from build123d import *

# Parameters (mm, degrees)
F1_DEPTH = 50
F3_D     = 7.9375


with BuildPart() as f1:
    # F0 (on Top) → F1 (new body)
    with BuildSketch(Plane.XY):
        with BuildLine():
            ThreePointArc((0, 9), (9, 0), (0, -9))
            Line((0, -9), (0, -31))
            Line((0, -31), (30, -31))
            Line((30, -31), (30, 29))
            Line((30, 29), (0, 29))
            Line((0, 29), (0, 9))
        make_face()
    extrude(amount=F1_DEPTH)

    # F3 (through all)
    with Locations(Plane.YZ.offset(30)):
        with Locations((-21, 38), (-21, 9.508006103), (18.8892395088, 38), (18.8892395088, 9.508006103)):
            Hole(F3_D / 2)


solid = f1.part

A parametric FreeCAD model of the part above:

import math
import FreeCAD as App
import Part
import Sketcher

doc = App.newDocument("Part")
body = doc.addObject("PartDesign::Body", "Body")

sketch1 = doc.addObject("Sketcher::SketchObject", "Sketch")
body.addObject(sketch1)
sketch1.AttachmentSupport = (doc.XY_Plane, [""])
sketch1.MapMode = "FlatFace"
sketch1.addGeometry(Part.ArcOfCircle(Part.Circle(App.Vector(0, 0, 0), App.Vector(0, 0, 1), 9), math.radians(-90), math.radians(90)), False)
sketch1.addGeometry(Part.LineSegment(App.Vector(0, -9, 0), App.Vector(0, -31, 0)), False)
sketch1.addGeometry(Part.LineSegment(App.Vector(0, -31, 0), App.Vector(30, -31, 0)), False)
sketch1.addGeometry(Part.LineSegment(App.Vector(30, -31, 0), App.Vector(30, 29, 0)), False)
sketch1.addGeometry(Part.LineSegment(App.Vector(30, 29, 0), App.Vector(0, 29, 0)), False)
sketch1.addGeometry(Part.LineSegment(App.Vector(0, 29, 0), App.Vector(0, 9, 0)), False)
sketch1.addConstraint(Sketcher.Constraint("Coincident", 0, 1, 1, 1))
sketch1.addConstraint(Sketcher.Constraint("Coincident", 1, 2, 2, 1))
sketch1.addConstraint(Sketcher.Constraint("Coincident", 2, 2, 3, 1))
sketch1.addConstraint(Sketcher.Constraint("Coincident", 3, 2, 4, 1))
sketch1.addConstraint(Sketcher.Constraint("Coincident", 4, 2, 5, 1))
sketch1.addConstraint(Sketcher.Constraint("Coincident", 5, 2, 0, 2))
sketch1.addConstraint(Sketcher.Constraint("Vertical", 1))
sketch1.addConstraint(Sketcher.Constraint("Horizontal", 2))
sketch1.addConstraint(Sketcher.Constraint("Vertical", 3))
sketch1.addConstraint(Sketcher.Constraint("Horizontal", 4))
sketch1.addConstraint(Sketcher.Constraint("Vertical", 5))
sketch1.addConstraint(Sketcher.Constraint("Coincident", 0, 3, -1, 1))
sketch1.addConstraint(Sketcher.Constraint("PointOnObject", 0, 1, -2))
sketch1.addConstraint(Sketcher.Constraint("PointOnObject", 4, 2, -2))
sketch1.addConstraint(Sketcher.Constraint("Radius", 0, 9.0))
sketch1.addConstraint(Sketcher.Constraint("DistanceX", 2, 1, 2, 2, 30.0))
sketch1.addConstraint(Sketcher.Constraint("DistanceY", 1, 2, 1, 1, 22.0))
sketch1.addConstraint(Sketcher.Constraint("DistanceY", 3, 1, 3, 2, 60.0))
pad1 = doc.addObject("PartDesign::Pad", "Pad")
body.addObject(pad1)
pad1.Profile = sketch1
pad1.Length = 50

sketch2 = doc.addObject("Sketcher::SketchObject", "Sketch001")
body.addObject(sketch2)
sketch2.AttachmentSupport = (doc.YZ_Plane, [""])
sketch2.MapMode = "FlatFace"
sketch2.AttachmentOffset = App.Placement(App.Vector(0, 0, 30), App.Rotation())
sketch2.addGeometry(Part.Circle(App.Vector(-21, 38, 0), App.Vector(0, 0, 1), 4), False)
sketch2.addGeometry(Part.Circle(App.Vector(-21, 9.5, 0), App.Vector(0, 0, 1), 4), False)
sketch2.addGeometry(Part.Circle(App.Vector(18.9, 38, 0), App.Vector(0, 0, 1), 4), False)
sketch2.addGeometry(Part.Circle(App.Vector(18.9, 9.5, 0), App.Vector(0, 0, 1), 4), False)
sketch2.addConstraint(Sketcher.Constraint("Equal", 0, 1))
sketch2.addConstraint(Sketcher.Constraint("Equal", 1, 2))
sketch2.addConstraint(Sketcher.Constraint("Equal", 2, 3))
sketch2.addConstraint(Sketcher.Constraint("Horizontal", 0, 3, 2, 3))
sketch2.addConstraint(Sketcher.Constraint("Horizontal", 1, 3, 3, 3))
sketch2.addConstraint(Sketcher.Constraint("Vertical", 0, 3, 1, 3))
sketch2.addConstraint(Sketcher.Constraint("Vertical", 2, 3, 3, 3))
sketch2.addConstraint(Sketcher.Constraint("DistanceX", 0, 3, -1, 1, 21.0))
sketch2.addConstraint(Sketcher.Constraint("DistanceY", -1, 1, 0, 3, 38.0))
sketch2.addConstraint(Sketcher.Constraint("Diameter", 0, 7.9375))
sketch2.addConstraint(Sketcher.Constraint("DistanceX", -1, 1, 2, 3, 18.88924))
sketch2.addConstraint(Sketcher.Constraint("DistanceY", -1, 1, 1, 3, 9.508006))
doc.recompute()
hole = doc.addObject("PartDesign::Hole", "Hole")
body.addObject(hole)
hole.Profile = sketch2
hole.ThreadType = "None"
hole.Diameter = 7.9375
hole.DepthType = "ThroughAll"

doc.recompute()
